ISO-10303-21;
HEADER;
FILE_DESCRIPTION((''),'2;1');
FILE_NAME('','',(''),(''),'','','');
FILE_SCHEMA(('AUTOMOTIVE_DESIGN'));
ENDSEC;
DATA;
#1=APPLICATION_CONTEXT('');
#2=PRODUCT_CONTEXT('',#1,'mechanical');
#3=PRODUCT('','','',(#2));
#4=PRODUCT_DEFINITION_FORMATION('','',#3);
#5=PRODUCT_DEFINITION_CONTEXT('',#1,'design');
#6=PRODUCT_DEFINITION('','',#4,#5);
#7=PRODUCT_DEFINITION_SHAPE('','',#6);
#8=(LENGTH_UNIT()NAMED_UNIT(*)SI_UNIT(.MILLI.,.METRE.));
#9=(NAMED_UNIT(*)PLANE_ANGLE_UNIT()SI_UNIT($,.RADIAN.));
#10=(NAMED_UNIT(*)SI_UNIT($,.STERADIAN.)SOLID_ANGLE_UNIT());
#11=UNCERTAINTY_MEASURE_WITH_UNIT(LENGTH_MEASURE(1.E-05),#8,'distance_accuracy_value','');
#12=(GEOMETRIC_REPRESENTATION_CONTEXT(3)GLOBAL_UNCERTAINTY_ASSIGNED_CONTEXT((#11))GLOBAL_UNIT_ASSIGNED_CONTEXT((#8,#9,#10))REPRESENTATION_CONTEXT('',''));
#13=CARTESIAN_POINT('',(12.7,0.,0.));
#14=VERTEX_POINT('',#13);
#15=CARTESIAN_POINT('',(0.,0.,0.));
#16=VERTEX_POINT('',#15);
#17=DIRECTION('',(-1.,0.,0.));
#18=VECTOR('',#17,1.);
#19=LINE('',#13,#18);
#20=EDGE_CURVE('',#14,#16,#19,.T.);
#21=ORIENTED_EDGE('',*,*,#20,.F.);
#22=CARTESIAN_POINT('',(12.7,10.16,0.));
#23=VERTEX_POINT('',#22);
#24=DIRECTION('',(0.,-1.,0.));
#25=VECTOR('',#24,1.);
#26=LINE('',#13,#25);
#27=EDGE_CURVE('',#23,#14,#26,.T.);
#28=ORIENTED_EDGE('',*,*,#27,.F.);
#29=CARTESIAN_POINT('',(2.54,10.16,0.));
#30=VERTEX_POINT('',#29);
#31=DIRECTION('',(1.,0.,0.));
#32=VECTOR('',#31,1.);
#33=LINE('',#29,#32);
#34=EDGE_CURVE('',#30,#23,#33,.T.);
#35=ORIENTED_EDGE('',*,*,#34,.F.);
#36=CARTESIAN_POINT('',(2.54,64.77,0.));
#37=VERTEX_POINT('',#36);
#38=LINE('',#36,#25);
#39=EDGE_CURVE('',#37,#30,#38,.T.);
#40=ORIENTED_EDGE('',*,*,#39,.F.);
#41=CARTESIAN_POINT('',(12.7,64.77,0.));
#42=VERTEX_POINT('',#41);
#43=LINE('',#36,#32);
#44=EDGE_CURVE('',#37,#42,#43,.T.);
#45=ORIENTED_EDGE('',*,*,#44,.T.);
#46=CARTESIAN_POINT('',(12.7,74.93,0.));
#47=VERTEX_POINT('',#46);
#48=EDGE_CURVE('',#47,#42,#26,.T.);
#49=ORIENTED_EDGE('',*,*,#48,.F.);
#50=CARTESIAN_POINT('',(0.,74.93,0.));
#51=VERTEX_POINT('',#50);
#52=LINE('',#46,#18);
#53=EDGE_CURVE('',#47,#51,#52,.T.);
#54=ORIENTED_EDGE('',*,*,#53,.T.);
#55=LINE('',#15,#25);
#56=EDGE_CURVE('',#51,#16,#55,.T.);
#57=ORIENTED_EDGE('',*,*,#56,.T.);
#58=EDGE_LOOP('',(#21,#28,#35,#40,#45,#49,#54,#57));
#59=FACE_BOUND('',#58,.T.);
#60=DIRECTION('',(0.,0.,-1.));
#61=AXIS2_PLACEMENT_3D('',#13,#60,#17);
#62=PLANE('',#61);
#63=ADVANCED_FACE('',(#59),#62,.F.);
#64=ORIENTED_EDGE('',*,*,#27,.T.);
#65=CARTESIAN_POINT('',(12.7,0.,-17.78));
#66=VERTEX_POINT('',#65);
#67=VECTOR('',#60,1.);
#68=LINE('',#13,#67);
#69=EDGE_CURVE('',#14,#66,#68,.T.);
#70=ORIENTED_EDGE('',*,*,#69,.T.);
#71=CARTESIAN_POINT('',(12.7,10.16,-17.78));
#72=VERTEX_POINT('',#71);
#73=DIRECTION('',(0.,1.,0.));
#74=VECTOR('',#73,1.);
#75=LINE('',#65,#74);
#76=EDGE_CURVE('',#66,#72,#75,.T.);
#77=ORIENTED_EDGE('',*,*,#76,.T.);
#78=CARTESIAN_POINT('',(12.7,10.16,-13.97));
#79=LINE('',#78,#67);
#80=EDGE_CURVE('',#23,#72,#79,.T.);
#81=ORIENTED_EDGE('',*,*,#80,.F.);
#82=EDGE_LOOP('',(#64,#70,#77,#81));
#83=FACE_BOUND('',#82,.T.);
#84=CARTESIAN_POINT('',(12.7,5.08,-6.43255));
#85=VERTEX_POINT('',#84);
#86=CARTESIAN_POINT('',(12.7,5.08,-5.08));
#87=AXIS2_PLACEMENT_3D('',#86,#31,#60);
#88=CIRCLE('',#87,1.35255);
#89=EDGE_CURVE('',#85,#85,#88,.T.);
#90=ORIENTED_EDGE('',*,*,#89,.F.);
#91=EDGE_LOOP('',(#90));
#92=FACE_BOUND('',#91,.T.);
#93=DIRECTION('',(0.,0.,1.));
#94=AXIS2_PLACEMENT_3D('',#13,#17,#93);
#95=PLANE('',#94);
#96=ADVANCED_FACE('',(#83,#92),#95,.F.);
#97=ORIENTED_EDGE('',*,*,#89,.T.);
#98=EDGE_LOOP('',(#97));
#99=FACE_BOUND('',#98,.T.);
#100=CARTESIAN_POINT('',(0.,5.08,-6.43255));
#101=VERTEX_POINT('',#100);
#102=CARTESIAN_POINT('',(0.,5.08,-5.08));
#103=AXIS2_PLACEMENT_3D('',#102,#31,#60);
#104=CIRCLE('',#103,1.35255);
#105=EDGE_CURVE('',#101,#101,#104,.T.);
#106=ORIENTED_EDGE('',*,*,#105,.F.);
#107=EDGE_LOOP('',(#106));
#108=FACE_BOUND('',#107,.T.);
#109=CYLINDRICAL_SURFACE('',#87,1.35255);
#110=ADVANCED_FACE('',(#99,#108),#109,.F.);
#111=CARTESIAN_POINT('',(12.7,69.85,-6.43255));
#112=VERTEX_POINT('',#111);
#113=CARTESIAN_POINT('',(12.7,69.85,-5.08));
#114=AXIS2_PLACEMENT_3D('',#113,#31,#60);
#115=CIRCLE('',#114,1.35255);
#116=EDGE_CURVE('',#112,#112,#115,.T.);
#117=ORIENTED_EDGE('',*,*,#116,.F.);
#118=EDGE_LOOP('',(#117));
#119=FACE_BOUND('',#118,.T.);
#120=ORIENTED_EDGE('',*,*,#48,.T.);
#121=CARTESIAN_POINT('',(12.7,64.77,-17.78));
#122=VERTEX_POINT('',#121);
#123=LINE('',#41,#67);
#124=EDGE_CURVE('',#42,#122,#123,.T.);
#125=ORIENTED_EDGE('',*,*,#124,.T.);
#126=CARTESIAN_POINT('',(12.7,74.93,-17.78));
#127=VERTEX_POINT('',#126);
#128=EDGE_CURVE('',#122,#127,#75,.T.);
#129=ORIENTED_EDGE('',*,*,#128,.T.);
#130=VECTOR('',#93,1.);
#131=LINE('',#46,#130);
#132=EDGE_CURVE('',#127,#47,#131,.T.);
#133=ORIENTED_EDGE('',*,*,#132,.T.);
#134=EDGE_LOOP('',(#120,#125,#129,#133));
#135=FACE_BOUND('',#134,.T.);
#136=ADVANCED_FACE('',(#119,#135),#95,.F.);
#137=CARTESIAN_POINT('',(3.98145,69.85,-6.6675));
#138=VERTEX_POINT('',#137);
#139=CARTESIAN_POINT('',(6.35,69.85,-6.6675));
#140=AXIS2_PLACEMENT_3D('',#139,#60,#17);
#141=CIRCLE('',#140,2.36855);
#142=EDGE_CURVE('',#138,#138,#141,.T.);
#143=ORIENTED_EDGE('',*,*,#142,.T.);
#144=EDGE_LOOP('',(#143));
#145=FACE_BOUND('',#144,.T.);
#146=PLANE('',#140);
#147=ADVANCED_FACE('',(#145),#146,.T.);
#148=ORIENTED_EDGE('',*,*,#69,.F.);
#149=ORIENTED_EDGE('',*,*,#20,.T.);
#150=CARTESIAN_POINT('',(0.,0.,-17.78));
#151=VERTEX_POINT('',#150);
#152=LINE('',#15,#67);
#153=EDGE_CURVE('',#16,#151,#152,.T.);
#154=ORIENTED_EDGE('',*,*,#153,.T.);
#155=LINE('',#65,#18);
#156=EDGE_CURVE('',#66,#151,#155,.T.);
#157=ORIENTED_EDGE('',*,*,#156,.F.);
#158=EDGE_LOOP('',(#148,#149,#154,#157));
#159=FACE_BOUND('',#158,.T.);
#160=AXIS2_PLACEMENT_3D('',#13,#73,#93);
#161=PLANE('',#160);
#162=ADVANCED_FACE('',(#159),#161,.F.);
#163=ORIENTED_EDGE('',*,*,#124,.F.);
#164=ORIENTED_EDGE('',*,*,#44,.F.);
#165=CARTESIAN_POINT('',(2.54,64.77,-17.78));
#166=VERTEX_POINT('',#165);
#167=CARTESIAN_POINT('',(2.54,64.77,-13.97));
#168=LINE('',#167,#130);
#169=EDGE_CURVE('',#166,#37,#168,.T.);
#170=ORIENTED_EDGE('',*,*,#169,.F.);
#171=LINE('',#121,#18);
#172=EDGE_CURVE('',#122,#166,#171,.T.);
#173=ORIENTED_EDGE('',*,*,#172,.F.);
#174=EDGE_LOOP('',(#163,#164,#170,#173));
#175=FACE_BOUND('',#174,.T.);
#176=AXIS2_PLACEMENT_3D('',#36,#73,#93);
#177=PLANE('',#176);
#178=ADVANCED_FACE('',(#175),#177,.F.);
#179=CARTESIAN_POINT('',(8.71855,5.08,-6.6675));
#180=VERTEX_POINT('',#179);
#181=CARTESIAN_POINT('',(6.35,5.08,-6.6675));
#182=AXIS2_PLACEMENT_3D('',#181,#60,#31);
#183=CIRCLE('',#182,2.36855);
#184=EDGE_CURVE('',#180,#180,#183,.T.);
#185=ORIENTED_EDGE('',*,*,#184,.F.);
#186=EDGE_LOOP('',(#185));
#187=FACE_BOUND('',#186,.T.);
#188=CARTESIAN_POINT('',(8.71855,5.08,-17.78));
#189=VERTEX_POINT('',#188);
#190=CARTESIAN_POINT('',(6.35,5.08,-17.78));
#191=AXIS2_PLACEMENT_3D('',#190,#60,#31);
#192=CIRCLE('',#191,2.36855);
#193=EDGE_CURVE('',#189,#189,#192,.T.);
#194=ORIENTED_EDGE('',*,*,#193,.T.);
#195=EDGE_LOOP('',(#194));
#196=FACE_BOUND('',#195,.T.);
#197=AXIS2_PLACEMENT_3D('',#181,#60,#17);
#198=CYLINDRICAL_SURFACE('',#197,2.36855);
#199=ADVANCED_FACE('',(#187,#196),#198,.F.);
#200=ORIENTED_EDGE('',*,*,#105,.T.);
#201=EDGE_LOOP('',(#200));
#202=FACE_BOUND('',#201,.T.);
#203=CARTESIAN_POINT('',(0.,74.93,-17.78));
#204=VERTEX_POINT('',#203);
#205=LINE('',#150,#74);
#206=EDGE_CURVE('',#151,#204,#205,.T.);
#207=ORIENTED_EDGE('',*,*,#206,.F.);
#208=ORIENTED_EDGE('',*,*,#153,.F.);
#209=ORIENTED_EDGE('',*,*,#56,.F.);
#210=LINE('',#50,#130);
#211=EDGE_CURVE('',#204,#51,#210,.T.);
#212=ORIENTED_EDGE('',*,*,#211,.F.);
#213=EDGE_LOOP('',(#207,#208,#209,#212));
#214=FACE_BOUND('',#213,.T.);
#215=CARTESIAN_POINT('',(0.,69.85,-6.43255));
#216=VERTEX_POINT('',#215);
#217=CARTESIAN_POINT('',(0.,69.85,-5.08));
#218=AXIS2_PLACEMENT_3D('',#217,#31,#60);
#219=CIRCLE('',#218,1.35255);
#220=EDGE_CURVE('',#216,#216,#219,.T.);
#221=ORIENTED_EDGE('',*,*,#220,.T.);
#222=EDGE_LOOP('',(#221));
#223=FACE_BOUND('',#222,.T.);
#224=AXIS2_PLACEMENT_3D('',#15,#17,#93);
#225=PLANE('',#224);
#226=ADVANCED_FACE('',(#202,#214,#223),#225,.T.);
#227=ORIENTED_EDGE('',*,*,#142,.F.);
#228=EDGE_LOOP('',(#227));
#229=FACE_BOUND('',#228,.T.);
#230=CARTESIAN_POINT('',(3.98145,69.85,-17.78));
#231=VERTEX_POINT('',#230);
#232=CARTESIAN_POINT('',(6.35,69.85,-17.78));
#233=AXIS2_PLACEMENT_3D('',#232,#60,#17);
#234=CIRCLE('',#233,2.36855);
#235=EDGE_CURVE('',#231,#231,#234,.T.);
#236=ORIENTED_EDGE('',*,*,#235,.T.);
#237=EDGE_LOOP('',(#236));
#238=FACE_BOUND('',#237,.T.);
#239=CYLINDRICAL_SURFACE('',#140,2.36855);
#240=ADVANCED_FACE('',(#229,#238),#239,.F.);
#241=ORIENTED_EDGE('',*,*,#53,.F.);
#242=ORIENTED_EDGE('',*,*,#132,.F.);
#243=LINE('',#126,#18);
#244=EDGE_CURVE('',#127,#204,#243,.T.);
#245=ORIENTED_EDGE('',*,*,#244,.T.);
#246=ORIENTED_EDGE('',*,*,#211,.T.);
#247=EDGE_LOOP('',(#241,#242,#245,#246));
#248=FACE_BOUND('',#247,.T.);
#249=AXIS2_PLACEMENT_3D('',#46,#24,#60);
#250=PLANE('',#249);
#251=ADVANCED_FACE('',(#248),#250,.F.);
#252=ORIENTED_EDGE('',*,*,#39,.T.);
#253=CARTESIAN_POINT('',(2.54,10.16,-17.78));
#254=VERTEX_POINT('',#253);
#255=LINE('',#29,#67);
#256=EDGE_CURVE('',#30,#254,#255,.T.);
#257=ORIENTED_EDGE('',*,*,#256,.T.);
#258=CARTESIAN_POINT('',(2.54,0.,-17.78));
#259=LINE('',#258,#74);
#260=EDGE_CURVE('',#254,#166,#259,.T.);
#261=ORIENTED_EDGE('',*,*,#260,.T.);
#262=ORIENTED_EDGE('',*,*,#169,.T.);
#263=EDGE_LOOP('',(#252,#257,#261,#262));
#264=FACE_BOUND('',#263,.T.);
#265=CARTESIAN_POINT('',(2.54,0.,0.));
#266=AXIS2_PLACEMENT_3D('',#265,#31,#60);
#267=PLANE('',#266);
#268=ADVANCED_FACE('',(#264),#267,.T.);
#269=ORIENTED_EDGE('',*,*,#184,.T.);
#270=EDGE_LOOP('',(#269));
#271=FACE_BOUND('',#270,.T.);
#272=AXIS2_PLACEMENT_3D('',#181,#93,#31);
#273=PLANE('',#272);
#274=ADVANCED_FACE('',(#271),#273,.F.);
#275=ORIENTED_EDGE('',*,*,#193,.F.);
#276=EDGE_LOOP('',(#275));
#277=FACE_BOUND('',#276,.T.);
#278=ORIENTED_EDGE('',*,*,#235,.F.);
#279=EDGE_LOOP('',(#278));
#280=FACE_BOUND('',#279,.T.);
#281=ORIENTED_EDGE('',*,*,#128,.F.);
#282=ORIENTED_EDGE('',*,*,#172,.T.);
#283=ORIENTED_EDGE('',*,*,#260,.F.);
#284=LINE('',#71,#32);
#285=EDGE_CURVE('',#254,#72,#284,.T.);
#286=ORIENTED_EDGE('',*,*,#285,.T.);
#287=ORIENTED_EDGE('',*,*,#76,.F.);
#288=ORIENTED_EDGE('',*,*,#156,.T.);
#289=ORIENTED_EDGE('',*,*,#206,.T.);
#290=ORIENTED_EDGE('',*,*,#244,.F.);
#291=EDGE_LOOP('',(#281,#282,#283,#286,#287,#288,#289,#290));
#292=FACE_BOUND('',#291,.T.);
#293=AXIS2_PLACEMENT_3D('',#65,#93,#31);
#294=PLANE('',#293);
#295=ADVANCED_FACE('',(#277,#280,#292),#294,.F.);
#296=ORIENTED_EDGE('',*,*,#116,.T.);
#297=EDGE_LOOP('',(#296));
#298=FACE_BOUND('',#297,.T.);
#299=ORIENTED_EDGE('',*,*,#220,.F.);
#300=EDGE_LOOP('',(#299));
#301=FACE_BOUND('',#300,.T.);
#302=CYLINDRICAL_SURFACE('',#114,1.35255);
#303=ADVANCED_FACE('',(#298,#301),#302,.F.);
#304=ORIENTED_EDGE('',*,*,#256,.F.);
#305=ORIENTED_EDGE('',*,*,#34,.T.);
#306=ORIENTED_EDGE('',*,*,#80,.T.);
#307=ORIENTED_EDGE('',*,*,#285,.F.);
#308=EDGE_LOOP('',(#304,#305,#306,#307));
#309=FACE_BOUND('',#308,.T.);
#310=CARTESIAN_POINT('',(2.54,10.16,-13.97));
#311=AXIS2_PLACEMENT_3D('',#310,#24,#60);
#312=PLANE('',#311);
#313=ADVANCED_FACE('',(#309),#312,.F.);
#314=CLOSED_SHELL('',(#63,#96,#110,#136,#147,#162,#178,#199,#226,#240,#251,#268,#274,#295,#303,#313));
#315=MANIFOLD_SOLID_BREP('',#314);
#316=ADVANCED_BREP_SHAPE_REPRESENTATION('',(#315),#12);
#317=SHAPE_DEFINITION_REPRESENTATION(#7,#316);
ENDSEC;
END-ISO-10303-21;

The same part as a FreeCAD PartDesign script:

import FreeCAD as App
import Part
import Sketcher
from FreeCAD import Vector
Q = App.Units.Quantity


def add_polygon(sketch, points):
    """Adds a closed chain of lines whose ends are joined by coincident constraints."""
    first, n = sketch.GeometryCount, len(points)
    for a, b in zip(points, points[1:] + points[:1]):
        sketch.addGeometry(Part.LineSegment(App.Vector(*a, 0), App.Vector(*b, 0)), False)
    for i in range(n):
        sketch.addConstraint(Sketcher.Constraint("Coincident", first + i, 2, first + (i + 1) % n, 1))

doc = App.newDocument("Part")
body = doc.addObject("PartDesign::Body", "Body")

# Sketch on YZ plane
sketch1 = doc.addObject("Sketcher::SketchObject", "Sketch")
body.addObject(sketch1)
sketch1.AttachmentSupport = (doc.YZ_Plane, [""])
sketch1.MapMode = "FlatFace"
add_polygon(sketch1, [(74.93, 0), (0, 0), (0, -17.78), (74.93, -17.78)])  # lines 0-3
sketch1.addConstraint(Sketcher.Constraint("Horizontal", 0))
sketch1.addConstraint(Sketcher.Constraint("Vertical", 1))
sketch1.addConstraint(Sketcher.Constraint("Horizontal", 2))
sketch1.addConstraint(Sketcher.Constraint("Vertical", 3))
sketch1.addConstraint(Sketcher.Constraint("Coincident", 0, 2, -1, 1))
sketch1.addConstraint(Sketcher.Constraint("DistanceY", 1, 2, 1, 1, Q("0.7 in")))
sketch1.addConstraint(Sketcher.Constraint("DistanceX", 0, 2, 0, 1, Q("2.95 in")))
pad1 = doc.addObject("PartDesign::Pad", "Pad")
body.addObject(pad1)
pad1.Profile = sketch1
pad1.Length = Q("0.5 in")

# Sketch on YZ plane
sketch2 = doc.addObject("Sketcher::SketchObject", "Sketch001")
body.addObject(sketch2)
sketch2.AttachmentSupport = (doc.YZ_Plane, [""])
sketch2.MapMode = "FlatFace"
sketch2.AttachmentOffset = App.Placement(Vector(0, 0, 0.5 * 25.4), App.Rotation())
add_polygon(sketch2, [(64.77, -24.13), (64.77, 0), (10.16, 0), (10.16, -24.13)])  # lines 0-3
sketch2.addConstraint(Sketcher.Constraint("Vertical", 0))
sketch2.addConstraint(Sketcher.Constraint("Horizontal", 1))
sketch2.addConstraint(Sketcher.Constraint("Vertical", 2))
sketch2.addConstraint(Sketcher.Constraint("Horizontal", 3))
sketch2.addConstraint(Sketcher.Constraint("PointOnObject", 0, 2, -1))
sketch2.addConstraint(Sketcher.Constraint("DistanceX", 1, 2, 1, 1, Q("2.15 in")))
sketch2.addConstraint(Sketcher.Constraint("DistanceY", 0, 1, 0, 2, Q("0.95 in")))
sketch2.addConstraint(Sketcher.Constraint("DistanceX", -1, 1, 1, 2, Q("0.4 in")))
pocket1 = doc.addObject("PartDesign::Pocket", "Pocket")
body.addObject(pocket1)
pocket1.Profile = sketch2
pocket1.Length = Q("0.4 in")

# Sketch on YZ plane
sketch3 = doc.addObject("Sketcher::SketchObject", "Sketch002")
body.addObject(sketch3)
sketch3.AttachmentSupport = (doc.YZ_Plane, [""])
sketch3.MapMode = "FlatFace"
sketch3.AttachmentOffset = App.Placement(Vector(0, 0, 0.5 * 25.4), App.Rotation())
sketch3.addGeometry(Part.Circle(Vector(69.85, -5.08, 0), Vector(0, 0, 1), 1.35255), False)
sketch3.addGeometry(Part.Circle(Vector(5.08, -5.08, 0), Vector(0, 0, 1), 1.35255), False)
sketch3.addConstraint(Sketcher.Constraint("Equal", 0, 1))
sketch3.addConstraint(Sketcher.Constraint("Horizontal", 0, 3, 1, 3))
sketch3.addConstraint(Sketcher.Constraint("Diameter", 0, Q("0.1065 in")))
sketch3.addConstraint(Sketcher.Constraint("DistanceY", 0, 3, -1, 1, Q("0.2 in")))
sketch3.addConstraint(Sketcher.Constraint("DistanceX", -1, 1, 1, 3, Q("0.2 in")))
sketch3.addConstraint(Sketcher.Constraint("DistanceX", -1, 1, 0, 3, Q("2.75 in")))
doc.recompute()
hole = doc.addObject("PartDesign::Hole", "Hole")
body.addObject(hole)
hole.Profile = sketch3
hole.ThreadType = "None"
hole.Diameter = Q("0.1065 in")
hole.DepthType = "ThroughAll"

# Sketch on XY plane
sketch4 = doc.addObject("Sketcher::SketchObject", "Sketch003")
body.addObject(sketch4)
sketch4.AttachmentSupport = (doc.XY_Plane, [""])
sketch4.MapMode = "FlatFace"
sketch4.AttachmentOffset = App.Placement(Vector(0, 0, -0.7 * 25.4), App.Rotation())
sketch4.addGeometry(Part.Circle(Vector(6.35, 69.85, 0), Vector(0, 0, 1), 2.36855), False)
sketch4.addGeometry(Part.Circle(Vector(6.35, 5.08, 0), Vector(0, 0, 1), 2.36855), False)
sketch4.addConstraint(Sketcher.Constraint("Equal", 0, 1))
sketch4.addConstraint(Sketcher.Constraint("Vertical", 0, 3, 1, 3))
sketch4.addConstraint(Sketcher.Constraint("Diameter", 0, Q("0.1865 in")))
sketch4.addConstraint(Sketcher.Constraint("DistanceY", -1, 1, 1, 3, Q("0.2 in")))
sketch4.addConstraint(Sketcher.Constraint("DistanceX", -1, 1, 0, 3, Q("0.25 in")))
sketch4.addConstraint(Sketcher.Constraint("DistanceY", -1, 1, 0, 3, Q("2.75 in")))
pocket2 = doc.addObject("PartDesign::Pocket", "Pocket001")
body.addObject(pocket2)
pocket2.Profile = sketch4
pocket2.Length = Q("0.4375 in")
pocket2.Reversed = True

doc.recompute()
